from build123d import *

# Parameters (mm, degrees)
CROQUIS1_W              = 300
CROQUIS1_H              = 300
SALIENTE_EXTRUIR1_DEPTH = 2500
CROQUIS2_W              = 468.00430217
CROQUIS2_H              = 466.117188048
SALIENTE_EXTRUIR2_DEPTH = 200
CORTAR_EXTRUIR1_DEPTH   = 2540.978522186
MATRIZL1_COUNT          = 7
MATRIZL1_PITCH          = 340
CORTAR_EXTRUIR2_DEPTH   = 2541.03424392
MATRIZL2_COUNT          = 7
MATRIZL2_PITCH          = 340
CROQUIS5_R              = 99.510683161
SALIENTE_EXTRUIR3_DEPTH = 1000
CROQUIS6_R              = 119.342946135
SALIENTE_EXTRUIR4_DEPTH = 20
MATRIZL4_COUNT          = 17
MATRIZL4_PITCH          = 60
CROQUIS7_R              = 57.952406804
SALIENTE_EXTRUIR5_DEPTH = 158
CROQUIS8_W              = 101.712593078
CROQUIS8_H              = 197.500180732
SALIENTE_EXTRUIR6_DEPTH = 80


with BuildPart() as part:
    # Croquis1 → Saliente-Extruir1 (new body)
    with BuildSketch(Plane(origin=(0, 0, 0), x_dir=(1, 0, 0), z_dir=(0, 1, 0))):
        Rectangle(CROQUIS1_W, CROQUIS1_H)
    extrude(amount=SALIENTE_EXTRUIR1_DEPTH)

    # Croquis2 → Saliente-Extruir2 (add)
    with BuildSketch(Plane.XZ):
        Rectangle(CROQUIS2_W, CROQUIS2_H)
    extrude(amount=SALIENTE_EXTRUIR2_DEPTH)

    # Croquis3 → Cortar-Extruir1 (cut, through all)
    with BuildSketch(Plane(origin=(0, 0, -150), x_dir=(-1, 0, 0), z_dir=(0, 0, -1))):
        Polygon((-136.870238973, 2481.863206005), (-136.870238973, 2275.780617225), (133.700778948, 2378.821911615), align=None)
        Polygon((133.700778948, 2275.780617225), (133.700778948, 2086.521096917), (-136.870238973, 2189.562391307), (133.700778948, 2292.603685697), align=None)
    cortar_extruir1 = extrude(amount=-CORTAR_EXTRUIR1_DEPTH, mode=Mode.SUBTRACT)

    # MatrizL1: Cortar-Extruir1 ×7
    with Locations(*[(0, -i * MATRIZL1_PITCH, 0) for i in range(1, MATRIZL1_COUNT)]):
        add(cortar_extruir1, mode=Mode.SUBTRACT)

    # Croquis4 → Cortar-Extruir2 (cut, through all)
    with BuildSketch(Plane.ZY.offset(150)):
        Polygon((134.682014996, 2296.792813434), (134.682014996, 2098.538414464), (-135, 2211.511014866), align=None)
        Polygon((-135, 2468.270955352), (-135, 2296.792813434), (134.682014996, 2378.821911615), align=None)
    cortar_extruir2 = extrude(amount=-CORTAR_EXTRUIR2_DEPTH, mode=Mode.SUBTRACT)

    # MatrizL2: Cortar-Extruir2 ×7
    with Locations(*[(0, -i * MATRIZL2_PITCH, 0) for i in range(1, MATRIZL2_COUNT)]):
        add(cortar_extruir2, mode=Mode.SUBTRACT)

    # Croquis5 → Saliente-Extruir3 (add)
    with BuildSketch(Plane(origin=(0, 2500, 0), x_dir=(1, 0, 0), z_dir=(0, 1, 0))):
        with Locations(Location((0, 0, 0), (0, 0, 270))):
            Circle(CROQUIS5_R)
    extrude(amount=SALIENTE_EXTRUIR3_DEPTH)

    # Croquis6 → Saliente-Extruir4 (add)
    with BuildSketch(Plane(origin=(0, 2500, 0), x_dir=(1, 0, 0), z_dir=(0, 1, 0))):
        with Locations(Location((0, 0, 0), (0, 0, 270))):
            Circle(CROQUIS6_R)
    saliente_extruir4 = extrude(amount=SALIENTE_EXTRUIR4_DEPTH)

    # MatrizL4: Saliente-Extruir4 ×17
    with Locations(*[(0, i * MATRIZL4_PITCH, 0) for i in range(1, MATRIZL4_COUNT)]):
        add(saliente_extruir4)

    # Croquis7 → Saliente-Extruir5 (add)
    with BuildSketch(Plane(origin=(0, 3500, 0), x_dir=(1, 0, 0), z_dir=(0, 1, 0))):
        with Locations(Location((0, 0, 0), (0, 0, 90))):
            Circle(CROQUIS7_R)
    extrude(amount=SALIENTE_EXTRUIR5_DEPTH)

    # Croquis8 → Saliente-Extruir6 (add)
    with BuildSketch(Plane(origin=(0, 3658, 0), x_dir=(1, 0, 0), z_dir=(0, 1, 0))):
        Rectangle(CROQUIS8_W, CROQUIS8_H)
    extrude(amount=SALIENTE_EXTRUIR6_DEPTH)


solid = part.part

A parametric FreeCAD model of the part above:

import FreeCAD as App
import Part
import Sketcher
Q = App.Units.Quantity


def add_polygon(sketch, points):
    """Adds a closed chain of lines whose ends are joined by coincident constraints."""
    first, n = sketch.GeometryCount, len(points)
    for a, b in zip(points, points[1:] + points[:1]):
        sketch.addGeometry(Part.LineSegment(App.Vector(*a, 0), App.Vector(*b, 0)), False)
    for i in range(n):
        sketch.addConstraint(Sketcher.Constraint("Coincident", first + i, 2, first + (i + 1) % n, 1))

doc = App.newDocument("Part")
params = doc.addObject("Spreadsheet::Sheet", "Params")
for row, (alias, value) in enumerate([
    ("sketch1_width", "300 mm"),
    ("pad1_length", "2500 mm"),
    ("pad2_length", "200 mm"),
    ("linearpattern_pitch", "340 mm"),
    ("linearpattern2_pitch", "340 mm"),
    ("pad3_length", "1000 mm"),
    ("pad4_length", "20 mm"),
    ("linearpattern3_pitch", "60 mm"),
    ("pad5_length", "158 mm"),
    ("pad6_length", "80 mm"),
], start=1):
    params.set(f"A{row}", alias)
    params.set(f"B{row}", "=" + value)
    params.setAlias(f"B{row}", alias)

body = doc.addObject("PartDesign::Body", "Body")

# Sketch on XZ plane
sketch1 = body.newObject("Sketcher::SketchObject", "Sketch")
sketch1.AttachmentSupport = (doc.getObject("XZ_Plane"), [""])
sketch1.MapMode = "FlatFace"
add_polygon(sketch1, [(-150, -150), (-150, 150), (150, 150), (150, -150)])  # lines 0-3
sketch1.addConstraint([
    Sketcher.Constraint("Vertical", 0),
    Sketcher.Constraint("Horizontal", 1),
    Sketcher.Constraint("Vertical", 2),
    Sketcher.Constraint("Horizontal", 3),
    Sketcher.Constraint("Symmetric", 0, 2, 2, 2, -1, 1),
    Sketcher.Constraint("Equal", 3, 0),
    Sketcher.Constraint("DistanceX", 1, 1, 1, 2, Q("300 mm")),
])
sketch1.setExpression("Constraints[10]", "Params.sketch1_width")
pad1 = body.newObject("PartDesign::Pad", "Pad")
pad1.Profile = sketch1
pad1.setExpression("Length", "Params.pad1_length")
pad1.Reversed = True

# Sketch on XZ plane
sketch2 = body.newObject("Sketcher::SketchObject", "Sketch001")
sketch2.AttachmentSupport = (doc.getObject("XZ_Plane"), [""])
sketch2.MapMode = "FlatFace"
add_polygon(sketch2, [(-234, 233), (-234, -233), (234, -233), (234, 233)])  # lines 0-3
sketch2.addConstraint([
    Sketcher.Constraint("Vertical", 0),
    Sketcher.Constraint("Horizontal", 1),
    Sketcher.Constraint("Vertical", 2),
    Sketcher.Constraint("Horizontal", 3),
    Sketcher.Constraint("Symmetric", 0, 2, 2, 2, -1, 1),
    Sketcher.Constraint("DistanceY", 0, 2, 0, 1, Q("466.117188 mm")),
    Sketcher.Constraint("DistanceX", 1, 1, 1, 2, Q("468.004302 mm")),
])
pad2 = body.newObject("PartDesign::Pad", "Pad001")
pad2.Profile = sketch2
pad2.setExpression("Length", "Params.pad2_length")

# Sketch on XY plane
sketch3 = body.newObject("Sketcher::SketchObject", "Sketch002")
sketch3.AttachmentSupport = (doc.getObject("XY_Plane"), [""])
sketch3.MapMode = "FlatFace"
sketch3.AttachmentOffset = App.Placement(App.Vector(0, 0, -150), App.Rotation())
add_polygon(sketch3, [(137, 2482), (137, 2276), (-134, 2379)])  # lines 0-2
add_polygon(sketch3, [(-134, 2087), (-134, 2293), (137, 2190)])  # lines 3-5
sketch3.addConstraint([
    Sketcher.Constraint("Vertical", 0),
    Sketcher.Constraint("Vertical", 3),
    Sketcher.Constraint("Parallel", 1, 4),
    Sketcher.Constraint("Parallel", 2, 5),
    Sketcher.Constraint("Vertical", 1, 2, 3, 2),
    Sketcher.Constraint("Vertical", 2, 2, 4, 2),
    Sketcher.Constraint("Equal", 1, 2),
    Sketcher.Constraint("DistanceY", 0, 2, 0, 1, Q("206.082589 mm")),
    Sketcher.Constraint("Distance", 1, Q("289.527519 mm")),
    Sketcher.Constraint("DistanceX", -1, 1, 0, 2, Q("136.870239 mm")),
    Sketcher.Constraint("DistanceY", -1, 1, 1, 2, Q("2378.821912 mm")),
    Sketcher.Constraint("DistanceY", -1, 1, 4, 2, Q("2189.562391 mm")),
])
pocket1 = body.newObject("PartDesign::Pocket", "Pocket")
pocket1.Profile = sketch3
pocket1.Type = "ThroughAll"
pocket1.Reversed = True
doc.recompute()

linearpattern = body.newObject("PartDesign::LinearPattern", "LinearPattern")
linearpattern.Originals = [pocket1]
linearpattern.Direction = (doc.getObject("Y_Axis"), [""])
linearpattern.Mode = "offset"
linearpattern.setExpression("Offset", "Params.linearpattern_pitch")
linearpattern.Occurrences = 7
linearpattern.Reversed = True
body.Tip = linearpattern

# Sketch on YZ plane
sketch4 = body.newObject("Sketcher::SketchObject", "Sketch003")
sketch4.AttachmentSupport = (doc.getObject("YZ_Plane"), [""])
sketch4.MapMode = "FlatFace"
sketch4.AttachmentOffset = App.Placement(App.Vector(0, 0, -150), App.Rotation())
add_polygon(sketch4, [(2099, 135), (2297, 135), (2212, -135)])  # lines 0-2
add_polygon(sketch4, [(2468, -135), (2297, -135), (2379, 135)])  # lines 3-5
sketch4.addConstraint([
    Sketcher.Constraint("Horizontal", 0),
    Sketcher.Constraint("Horizontal", 3),
    Sketcher.Constraint("Horizontal", 1, 2, 3, 2),
    Sketcher.Constraint("Horizontal", 2, 2, 4, 2),
    Sketcher.Constraint("Vertical", 0, 2, 3, 2),
    Sketcher.Constraint("DistanceY", 1, 2, -1, 1, Q("135 mm")),
    Sketcher.Constraint("DistanceX", 0, 1, 0, 2, Q("198.254399 mm")),
    Sketcher.Constraint("DistanceX", 3, 2, 3, 1, Q("171.478142 mm")),
    Sketcher.Constraint("DistanceX", 1, 2, 0, 2, Q("85.281799 mm")),
    Sketcher.Constraint("DistanceX", 0, 2, 4, 2, Q("82.029098 mm")),
    Sketcher.Constraint("Distance", 2, Q("292.388778 mm")),
    Sketcher.Constraint("DistanceX", -1, 1, 4, 2, Q("2378.821912 mm")),
])
pocket2 = body.newObject("PartDesign::Pocket", "Pocket001")
pocket2.Profile = sketch4
pocket2.Type = "ThroughAll"
pocket2.Reversed = True
doc.recompute()

linearpattern2 = body.newObject("PartDesign::LinearPattern", "LinearPattern001")
linearpattern2.Originals = [pocket2]
linearpattern2.Direction = (doc.getObject("Y_Axis"), [""])
linearpattern2.Mode = "offset"
linearpattern2.setExpression("Offset", "Params.linearpattern2_pitch")
linearpattern2.Occurrences = 7
linearpattern2.Reversed = True
body.Tip = linearpattern2

# Sketch on XZ plane
sketch5 = body.newObject("Sketcher::SketchObject", "Sketch004")
sketch5.AttachmentSupport = (doc.getObject("XZ_Plane"), [""])
sketch5.MapMode = "FlatFace"
sketch5.AttachmentOffset = App.Placement(App.Vector(0, 0, -2500), App.Rotation())
sketch5.addGeometry(Part.Circle(App.Vector(0, 0, 0), App.Vector(0, 0, 1), 100), False)
sketch5.addConstraint([
    Sketcher.Constraint("Coincident", 0, 3, -1, 1),
    Sketcher.Constraint("Diameter", 0, Q("199.021366 mm")),
])
pad3 = body.newObject("PartDesign::Pad", "Pad002")
pad3.Profile = sketch5
pad3.setExpression("Length", "Params.pad3_length")
pad3.Reversed = True

# Sketch on XZ plane
sketch6 = body.newObject("Sketcher::SketchObject", "Sketch005")
sketch6.AttachmentSupport = (doc.getObject("XZ_Plane"), [""])
sketch6.MapMode = "FlatFace"
sketch6.AttachmentOffset = App.Placement(App.Vector(0, 0, -2500), App.Rotation())
sketch6.addGeometry(Part.Circle(App.Vector(0, 0, 0), App.Vector(0, 0, 1), 119), False)
sketch6.addConstraint([
    Sketcher.Constraint("Coincident", 0, 3, -1, 1),
    Sketcher.Constraint("Diameter", 0, Q("238.685892 mm")),
])
pad4 = body.newObject("PartDesign::Pad", "Pad003")
pad4.Profile = sketch6
pad4.setExpression("Length", "Params.pad4_length")
pad4.Reversed = True
doc.recompute()

linearpattern3 = body.newObject("PartDesign::LinearPattern", "LinearPattern002")
linearpattern3.Originals = [pad4]
linearpattern3.Direction = (doc.getObject("Y_Axis"), [""])
linearpattern3.Mode = "offset"
linearpattern3.setExpression("Offset", "Params.linearpattern3_pitch")
linearpattern3.Occurrences = 17
body.Tip = linearpattern3

# Sketch on XZ plane
sketch7 = body.newObject("Sketcher::SketchObject", "Sketch006")
sketch7.AttachmentSupport = (doc.getObject("XZ_Plane"), [""])
sketch7.MapMode = "FlatFace"
sketch7.AttachmentOffset = App.Placement(App.Vector(0, 0, -3500), App.Rotation())
sketch7.addGeometry(Part.Circle(App.Vector(0, 0, 0), App.Vector(0, 0, 1), 58), False)
sketch7.addConstraint([
    Sketcher.Constraint("Coincident", 0, 3, -1, 1),
    Sketcher.Constraint("Diameter", 0, Q("115.904814 mm")),
])
pad5 = body.newObject("PartDesign::Pad", "Pad004")
pad5.Profile = sketch7
pad5.setExpression("Length", "Params.pad5_length")
pad5.Reversed = True

# Sketch on XZ plane
sketch8 = body.newObject("Sketcher::SketchObject", "Sketch007")
sketch8.AttachmentSupport = (doc.getObject("XZ_Plane"), [""])
sketch8.MapMode = "FlatFace"
sketch8.AttachmentOffset = App.Placement(App.Vector(0, 0, -3658), App.Rotation())
add_polygon(sketch8, [(-51, -99), (-51, 99), (51, 99), (51, -99)])  # lines 0-3
sketch8.addConstraint([
    Sketcher.Constraint("Vertical", 0),
    Sketcher.Constraint("Horizontal", 1),
    Sketcher.Constraint("Vertical", 2),
    Sketcher.Constraint("Horizontal", 3),
    Sketcher.Constraint("Symmetric", 0, 2, 2, 2, -1, 1),
    Sketcher.Constraint("DistanceY", 0, 1, 0, 2, Q("197.500181 mm")),
    Sketcher.Constraint("DistanceX", 1, 1, 1, 2, Q("101.712593 mm")),
])
pad6 = body.newObject("PartDesign::Pad", "Pad005")
pad6.Profile = sketch8
pad6.setExpression("Length", "Params.pad6_length")
pad6.Reversed = True

doc.recompute()
